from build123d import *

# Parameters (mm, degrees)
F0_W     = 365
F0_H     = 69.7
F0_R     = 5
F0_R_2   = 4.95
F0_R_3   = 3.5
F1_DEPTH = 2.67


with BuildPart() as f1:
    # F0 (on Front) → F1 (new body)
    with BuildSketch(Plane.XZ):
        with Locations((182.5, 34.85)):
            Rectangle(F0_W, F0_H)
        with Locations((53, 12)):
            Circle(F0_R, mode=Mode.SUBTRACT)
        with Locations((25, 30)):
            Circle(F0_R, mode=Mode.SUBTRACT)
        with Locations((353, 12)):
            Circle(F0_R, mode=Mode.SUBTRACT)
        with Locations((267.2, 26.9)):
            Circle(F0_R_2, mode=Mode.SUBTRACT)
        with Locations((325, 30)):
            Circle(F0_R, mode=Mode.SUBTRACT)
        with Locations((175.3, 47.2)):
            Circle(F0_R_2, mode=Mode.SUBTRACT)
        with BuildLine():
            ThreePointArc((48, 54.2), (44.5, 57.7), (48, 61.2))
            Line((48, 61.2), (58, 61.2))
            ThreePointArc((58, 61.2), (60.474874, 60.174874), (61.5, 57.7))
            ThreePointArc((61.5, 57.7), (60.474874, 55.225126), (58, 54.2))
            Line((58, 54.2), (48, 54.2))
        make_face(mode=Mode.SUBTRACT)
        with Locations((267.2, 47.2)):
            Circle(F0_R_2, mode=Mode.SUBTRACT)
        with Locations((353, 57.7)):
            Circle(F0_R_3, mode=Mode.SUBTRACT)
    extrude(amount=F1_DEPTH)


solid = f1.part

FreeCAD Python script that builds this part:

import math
import FreeCAD as App
import Part
import Sketcher

doc = App.newDocument("Part")
params = doc.addObject("Spreadsheet::Sheet", "Params")
for row, (alias, value) in enumerate([
    ("sketch1_diameter", "10 mm"),
    ("sketch1_diameter2", "7 mm"),
    ("sketch1_diameter3", "9.9 mm"),
    ("sketch1_width", "365 mm"),
    ("sketch1_width2", "10 mm"),
    ("pad1_length", "2.67 mm"),
], start=1):
    params.set(f"A{row}", alias)
    params.set(f"B{row}", "=" + value)
    params.setAlias(f"B{row}", alias)

body = doc.addObject("PartDesign::Body", "Body")

sketch1 = body.newObject("Sketcher::SketchObject", "Sketch")
sketch1.AttachmentSupport = (doc.getObject("XZ_Plane"), [""])
sketch1.MapMode = "FlatFace"
sketch1.addGeometry(Part.LineSegment(App.Vector(0, 69.7, 0), App.Vector(0, 0, 0)), False)
sketch1.addGeometry(Part.LineSegment(App.Vector(0, 0, 0), App.Vector(365, 0, 0)), False)
sketch1.addGeometry(Part.LineSegment(App.Vector(365, 0, 0), App.Vector(365, 69.7, 0)), False)
sketch1.addGeometry(Part.LineSegment(App.Vector(365, 69.7, 0), App.Vector(0, 69.7, 0)), False)
sketch1.addGeometry(Part.Circle(App.Vector(53, 12, 0), App.Vector(0, 0, 1), 5), False)
sketch1.addGeometry(Part.Circle(App.Vector(25, 30, 0), App.Vector(0, 0, 1), 5), False)
sketch1.addGeometry(Part.Circle(App.Vector(353, 12, 0), App.Vector(0, 0, 1), 5), False)
sketch1.addGeometry(Part.Circle(App.Vector(267.2, 26.9, 0), App.Vector(0, 0, 1), 5), False)
sketch1.addGeometry(Part.Circle(App.Vector(325, 30, 0), App.Vector(0, 0, 1), 5), False)
sketch1.addGeometry(Part.Circle(App.Vector(175.3, 47.2, 0), App.Vector(0, 0, 1), 5), False)
sketch1.addGeometry(Part.LineSegment(App.Vector(58, 54.2, 0), App.Vector(48, 54.2, 0)), False)
sketch1.addGeometry(Part.ArcOfCircle(Part.Circle(App.Vector(48, 57.7, 0), App.Vector(0, 0, 1), 3.5), math.radians(90), math.radians(270)), False)
sketch1.addGeometry(Part.LineSegment(App.Vector(48, 61.2, 0), App.Vector(58, 61.2, 0)), False)
sketch1.addGeometry(Part.ArcOfCircle(Part.Circle(App.Vector(58, 57.7, 0), App.Vector(0, 0, 1), 3.5), math.radians(0), math.radians(90)), False)
sketch1.addGeometry(Part.ArcOfCircle(Part.Circle(App.Vector(58, 57.7, 0), App.Vector(0, 0, 1), 3.5), math.radians(-90), math.radians(0)), False)
sketch1.addGeometry(Part.Circle(App.Vector(267.2, 47.2, 0), App.Vector(0, 0, 1), 5), False)
sketch1.addGeometry(Part.Circle(App.Vector(353, 57.7, 0), App.Vector(0, 0, 1), 3.5), False)
sketch1.addConstraint(Sketcher.Constraint("Coincident", 0, 2, 1, 1))
sketch1.addConstraint(Sketcher.Constraint("Coincident", 1, 2, 2, 1))
sketch1.addConstraint(Sketcher.Constraint("Coincident", 2, 2, 3, 1))
sketch1.addConstraint(Sketcher.Constraint("Coincident", 3, 2, 0, 1))
sketch1.addConstraint(Sketcher.Constraint("Tangent", 10, 2, 11, 2))
sketch1.addConstraint(Sketcher.Constraint("Tangent", 11, 1, 12, 1))
sketch1.addConstraint(Sketcher.Constraint("Tangent", 12, 2, 13, 2))
sketch1.addConstraint(Sketcher.Constraint("Tangent", 13, 1, 14, 2))
sketch1.addConstraint(Sketcher.Constraint("Tangent", 14, 1, 10, 1))
sketch1.addConstraint(Sketcher.Constraint("Vertical", 0))
sketch1.addConstraint(Sketcher.Constraint("Horizontal", 1))
sketch1.addConstraint(Sketcher.Constraint("Vertical", 2))
sketch1.addConstraint(Sketcher.Constraint("Horizontal", 3))
sketch1.addConstraint(Sketcher.Constraint("Horizontal", 10))
sketch1.addConstraint(Sketcher.Constraint("Horizontal", 12))
sketch1.addConstraint(Sketcher.Constraint("Coincident", 0, 2, -1, 1))
sketch1.addConstraint(Sketcher.Constraint("Equal", 4, 5))
sketch1.addConstraint(Sketcher.Constraint("Equal", 5, 6))
sketch1.addConstraint(Sketcher.Constraint("Equal", 6, 8))
sketch1.addConstraint(Sketcher.Constraint("Equal", 7, 9))
sketch1.addConstraint(Sketcher.Constraint("Equal", 11, 13))
sketch1.addConstraint(Sketcher.Constraint("Equal", 9, 15))
sketch1.addConstraint(Sketcher.Constraint("Equal", 14, 16))
sketch1.addConstraint(Sketcher.Constraint("Horizontal", 4, 3, 6, 3))
sketch1.addConstraint(Sketcher.Constraint("Horizontal", 5, 3, 8, 3))
sketch1.addConstraint(Sketcher.Constraint("Horizontal", 9, 3, 15, 3))
sketch1.addConstraint(Sketcher.Constraint("Horizontal", 14, 3, 16, 3))
sketch1.addConstraint(Sketcher.Constraint("Horizontal", 16, 3, 13, 1))
sketch1.addConstraint(Sketcher.Constraint("Vertical", 7, 3, 15, 3))
sketch1.addConstraint(Sketcher.Constraint("Vertical", 6, 3, 16, 3))
sketch1.addConstraint(Sketcher.Constraint("Diameter", 4, 10.0))
sketch1.addConstraint(Sketcher.Constraint("Diameter", 16, 7.0))
sketch1.addConstraint(Sketcher.Constraint("Diameter", 7, 9.9))
sketch1.addConstraint(Sketcher.Constraint("DistanceX", 1, 1, 1, 2, 365.0))
sketch1.addConstraint(Sketcher.Constraint("DistanceX", 10, 2, 10, 1, 10.0))
sketch1.addConstraint(Sketcher.Constraint("DistanceY", 0, 2, 0, 1, 69.7))
sketch1.addConstraint(Sketcher.Constraint("DistanceX", -1, 1, 4, 3, 53.0))
sketch1.addConstraint(Sketcher.Constraint("DistanceY", -1, 1, 4, 3, 12.0))
sketch1.addConstraint(Sketcher.Constraint("DistanceX", -1, 1, 5, 3, 25.0))
sketch1.addConstraint(Sketcher.Constraint("DistanceY", -1, 1, 5, 3, 30.0))
sketch1.addConstraint(Sketcher.Constraint("DistanceX", -1, 1, 6, 3, 353.0))
sketch1.addConstraint(Sketcher.Constraint("DistanceX", -1, 1, 8, 3, 325.0))
sketch1.addConstraint(Sketcher.Constraint("DistanceX", -1, 1, 11, 3, 48.0))
sketch1.addConstraint(Sketcher.Constraint("DistanceY", 16, 3, 2, 2, 12.0))
sketch1.addConstraint(Sketcher.Constraint("DistanceX", -1, 1, 7, 3, 267.2))
sketch1.addConstraint(Sketcher.Constraint("DistanceY", -1, 1, 7, 3, 26.9))
sketch1.addConstraint(Sketcher.Constraint("DistanceX", -1, 1, 9, 3, 175.3))
sketch1.addConstraint(Sketcher.Constraint("DistanceY", -1, 1, 9, 3, 47.2))
sketch1.setExpression("Constraints[30]", "Params.sketch1_diameter")
sketch1.setExpression("Constraints[31]", "Params.sketch1_diameter2")
sketch1.setExpression("Constraints[32]", "Params.sketch1_diameter3")
sketch1.setExpression("Constraints[33]", "Params.sketch1_width")
sketch1.setExpression("Constraints[34]", "Params.sketch1_width2")
pad1 = body.newObject("PartDesign::Pad", "Pad")
pad1.Profile = sketch1
pad1.setExpression("Length", "Params.pad1_length")

doc.recompute()
